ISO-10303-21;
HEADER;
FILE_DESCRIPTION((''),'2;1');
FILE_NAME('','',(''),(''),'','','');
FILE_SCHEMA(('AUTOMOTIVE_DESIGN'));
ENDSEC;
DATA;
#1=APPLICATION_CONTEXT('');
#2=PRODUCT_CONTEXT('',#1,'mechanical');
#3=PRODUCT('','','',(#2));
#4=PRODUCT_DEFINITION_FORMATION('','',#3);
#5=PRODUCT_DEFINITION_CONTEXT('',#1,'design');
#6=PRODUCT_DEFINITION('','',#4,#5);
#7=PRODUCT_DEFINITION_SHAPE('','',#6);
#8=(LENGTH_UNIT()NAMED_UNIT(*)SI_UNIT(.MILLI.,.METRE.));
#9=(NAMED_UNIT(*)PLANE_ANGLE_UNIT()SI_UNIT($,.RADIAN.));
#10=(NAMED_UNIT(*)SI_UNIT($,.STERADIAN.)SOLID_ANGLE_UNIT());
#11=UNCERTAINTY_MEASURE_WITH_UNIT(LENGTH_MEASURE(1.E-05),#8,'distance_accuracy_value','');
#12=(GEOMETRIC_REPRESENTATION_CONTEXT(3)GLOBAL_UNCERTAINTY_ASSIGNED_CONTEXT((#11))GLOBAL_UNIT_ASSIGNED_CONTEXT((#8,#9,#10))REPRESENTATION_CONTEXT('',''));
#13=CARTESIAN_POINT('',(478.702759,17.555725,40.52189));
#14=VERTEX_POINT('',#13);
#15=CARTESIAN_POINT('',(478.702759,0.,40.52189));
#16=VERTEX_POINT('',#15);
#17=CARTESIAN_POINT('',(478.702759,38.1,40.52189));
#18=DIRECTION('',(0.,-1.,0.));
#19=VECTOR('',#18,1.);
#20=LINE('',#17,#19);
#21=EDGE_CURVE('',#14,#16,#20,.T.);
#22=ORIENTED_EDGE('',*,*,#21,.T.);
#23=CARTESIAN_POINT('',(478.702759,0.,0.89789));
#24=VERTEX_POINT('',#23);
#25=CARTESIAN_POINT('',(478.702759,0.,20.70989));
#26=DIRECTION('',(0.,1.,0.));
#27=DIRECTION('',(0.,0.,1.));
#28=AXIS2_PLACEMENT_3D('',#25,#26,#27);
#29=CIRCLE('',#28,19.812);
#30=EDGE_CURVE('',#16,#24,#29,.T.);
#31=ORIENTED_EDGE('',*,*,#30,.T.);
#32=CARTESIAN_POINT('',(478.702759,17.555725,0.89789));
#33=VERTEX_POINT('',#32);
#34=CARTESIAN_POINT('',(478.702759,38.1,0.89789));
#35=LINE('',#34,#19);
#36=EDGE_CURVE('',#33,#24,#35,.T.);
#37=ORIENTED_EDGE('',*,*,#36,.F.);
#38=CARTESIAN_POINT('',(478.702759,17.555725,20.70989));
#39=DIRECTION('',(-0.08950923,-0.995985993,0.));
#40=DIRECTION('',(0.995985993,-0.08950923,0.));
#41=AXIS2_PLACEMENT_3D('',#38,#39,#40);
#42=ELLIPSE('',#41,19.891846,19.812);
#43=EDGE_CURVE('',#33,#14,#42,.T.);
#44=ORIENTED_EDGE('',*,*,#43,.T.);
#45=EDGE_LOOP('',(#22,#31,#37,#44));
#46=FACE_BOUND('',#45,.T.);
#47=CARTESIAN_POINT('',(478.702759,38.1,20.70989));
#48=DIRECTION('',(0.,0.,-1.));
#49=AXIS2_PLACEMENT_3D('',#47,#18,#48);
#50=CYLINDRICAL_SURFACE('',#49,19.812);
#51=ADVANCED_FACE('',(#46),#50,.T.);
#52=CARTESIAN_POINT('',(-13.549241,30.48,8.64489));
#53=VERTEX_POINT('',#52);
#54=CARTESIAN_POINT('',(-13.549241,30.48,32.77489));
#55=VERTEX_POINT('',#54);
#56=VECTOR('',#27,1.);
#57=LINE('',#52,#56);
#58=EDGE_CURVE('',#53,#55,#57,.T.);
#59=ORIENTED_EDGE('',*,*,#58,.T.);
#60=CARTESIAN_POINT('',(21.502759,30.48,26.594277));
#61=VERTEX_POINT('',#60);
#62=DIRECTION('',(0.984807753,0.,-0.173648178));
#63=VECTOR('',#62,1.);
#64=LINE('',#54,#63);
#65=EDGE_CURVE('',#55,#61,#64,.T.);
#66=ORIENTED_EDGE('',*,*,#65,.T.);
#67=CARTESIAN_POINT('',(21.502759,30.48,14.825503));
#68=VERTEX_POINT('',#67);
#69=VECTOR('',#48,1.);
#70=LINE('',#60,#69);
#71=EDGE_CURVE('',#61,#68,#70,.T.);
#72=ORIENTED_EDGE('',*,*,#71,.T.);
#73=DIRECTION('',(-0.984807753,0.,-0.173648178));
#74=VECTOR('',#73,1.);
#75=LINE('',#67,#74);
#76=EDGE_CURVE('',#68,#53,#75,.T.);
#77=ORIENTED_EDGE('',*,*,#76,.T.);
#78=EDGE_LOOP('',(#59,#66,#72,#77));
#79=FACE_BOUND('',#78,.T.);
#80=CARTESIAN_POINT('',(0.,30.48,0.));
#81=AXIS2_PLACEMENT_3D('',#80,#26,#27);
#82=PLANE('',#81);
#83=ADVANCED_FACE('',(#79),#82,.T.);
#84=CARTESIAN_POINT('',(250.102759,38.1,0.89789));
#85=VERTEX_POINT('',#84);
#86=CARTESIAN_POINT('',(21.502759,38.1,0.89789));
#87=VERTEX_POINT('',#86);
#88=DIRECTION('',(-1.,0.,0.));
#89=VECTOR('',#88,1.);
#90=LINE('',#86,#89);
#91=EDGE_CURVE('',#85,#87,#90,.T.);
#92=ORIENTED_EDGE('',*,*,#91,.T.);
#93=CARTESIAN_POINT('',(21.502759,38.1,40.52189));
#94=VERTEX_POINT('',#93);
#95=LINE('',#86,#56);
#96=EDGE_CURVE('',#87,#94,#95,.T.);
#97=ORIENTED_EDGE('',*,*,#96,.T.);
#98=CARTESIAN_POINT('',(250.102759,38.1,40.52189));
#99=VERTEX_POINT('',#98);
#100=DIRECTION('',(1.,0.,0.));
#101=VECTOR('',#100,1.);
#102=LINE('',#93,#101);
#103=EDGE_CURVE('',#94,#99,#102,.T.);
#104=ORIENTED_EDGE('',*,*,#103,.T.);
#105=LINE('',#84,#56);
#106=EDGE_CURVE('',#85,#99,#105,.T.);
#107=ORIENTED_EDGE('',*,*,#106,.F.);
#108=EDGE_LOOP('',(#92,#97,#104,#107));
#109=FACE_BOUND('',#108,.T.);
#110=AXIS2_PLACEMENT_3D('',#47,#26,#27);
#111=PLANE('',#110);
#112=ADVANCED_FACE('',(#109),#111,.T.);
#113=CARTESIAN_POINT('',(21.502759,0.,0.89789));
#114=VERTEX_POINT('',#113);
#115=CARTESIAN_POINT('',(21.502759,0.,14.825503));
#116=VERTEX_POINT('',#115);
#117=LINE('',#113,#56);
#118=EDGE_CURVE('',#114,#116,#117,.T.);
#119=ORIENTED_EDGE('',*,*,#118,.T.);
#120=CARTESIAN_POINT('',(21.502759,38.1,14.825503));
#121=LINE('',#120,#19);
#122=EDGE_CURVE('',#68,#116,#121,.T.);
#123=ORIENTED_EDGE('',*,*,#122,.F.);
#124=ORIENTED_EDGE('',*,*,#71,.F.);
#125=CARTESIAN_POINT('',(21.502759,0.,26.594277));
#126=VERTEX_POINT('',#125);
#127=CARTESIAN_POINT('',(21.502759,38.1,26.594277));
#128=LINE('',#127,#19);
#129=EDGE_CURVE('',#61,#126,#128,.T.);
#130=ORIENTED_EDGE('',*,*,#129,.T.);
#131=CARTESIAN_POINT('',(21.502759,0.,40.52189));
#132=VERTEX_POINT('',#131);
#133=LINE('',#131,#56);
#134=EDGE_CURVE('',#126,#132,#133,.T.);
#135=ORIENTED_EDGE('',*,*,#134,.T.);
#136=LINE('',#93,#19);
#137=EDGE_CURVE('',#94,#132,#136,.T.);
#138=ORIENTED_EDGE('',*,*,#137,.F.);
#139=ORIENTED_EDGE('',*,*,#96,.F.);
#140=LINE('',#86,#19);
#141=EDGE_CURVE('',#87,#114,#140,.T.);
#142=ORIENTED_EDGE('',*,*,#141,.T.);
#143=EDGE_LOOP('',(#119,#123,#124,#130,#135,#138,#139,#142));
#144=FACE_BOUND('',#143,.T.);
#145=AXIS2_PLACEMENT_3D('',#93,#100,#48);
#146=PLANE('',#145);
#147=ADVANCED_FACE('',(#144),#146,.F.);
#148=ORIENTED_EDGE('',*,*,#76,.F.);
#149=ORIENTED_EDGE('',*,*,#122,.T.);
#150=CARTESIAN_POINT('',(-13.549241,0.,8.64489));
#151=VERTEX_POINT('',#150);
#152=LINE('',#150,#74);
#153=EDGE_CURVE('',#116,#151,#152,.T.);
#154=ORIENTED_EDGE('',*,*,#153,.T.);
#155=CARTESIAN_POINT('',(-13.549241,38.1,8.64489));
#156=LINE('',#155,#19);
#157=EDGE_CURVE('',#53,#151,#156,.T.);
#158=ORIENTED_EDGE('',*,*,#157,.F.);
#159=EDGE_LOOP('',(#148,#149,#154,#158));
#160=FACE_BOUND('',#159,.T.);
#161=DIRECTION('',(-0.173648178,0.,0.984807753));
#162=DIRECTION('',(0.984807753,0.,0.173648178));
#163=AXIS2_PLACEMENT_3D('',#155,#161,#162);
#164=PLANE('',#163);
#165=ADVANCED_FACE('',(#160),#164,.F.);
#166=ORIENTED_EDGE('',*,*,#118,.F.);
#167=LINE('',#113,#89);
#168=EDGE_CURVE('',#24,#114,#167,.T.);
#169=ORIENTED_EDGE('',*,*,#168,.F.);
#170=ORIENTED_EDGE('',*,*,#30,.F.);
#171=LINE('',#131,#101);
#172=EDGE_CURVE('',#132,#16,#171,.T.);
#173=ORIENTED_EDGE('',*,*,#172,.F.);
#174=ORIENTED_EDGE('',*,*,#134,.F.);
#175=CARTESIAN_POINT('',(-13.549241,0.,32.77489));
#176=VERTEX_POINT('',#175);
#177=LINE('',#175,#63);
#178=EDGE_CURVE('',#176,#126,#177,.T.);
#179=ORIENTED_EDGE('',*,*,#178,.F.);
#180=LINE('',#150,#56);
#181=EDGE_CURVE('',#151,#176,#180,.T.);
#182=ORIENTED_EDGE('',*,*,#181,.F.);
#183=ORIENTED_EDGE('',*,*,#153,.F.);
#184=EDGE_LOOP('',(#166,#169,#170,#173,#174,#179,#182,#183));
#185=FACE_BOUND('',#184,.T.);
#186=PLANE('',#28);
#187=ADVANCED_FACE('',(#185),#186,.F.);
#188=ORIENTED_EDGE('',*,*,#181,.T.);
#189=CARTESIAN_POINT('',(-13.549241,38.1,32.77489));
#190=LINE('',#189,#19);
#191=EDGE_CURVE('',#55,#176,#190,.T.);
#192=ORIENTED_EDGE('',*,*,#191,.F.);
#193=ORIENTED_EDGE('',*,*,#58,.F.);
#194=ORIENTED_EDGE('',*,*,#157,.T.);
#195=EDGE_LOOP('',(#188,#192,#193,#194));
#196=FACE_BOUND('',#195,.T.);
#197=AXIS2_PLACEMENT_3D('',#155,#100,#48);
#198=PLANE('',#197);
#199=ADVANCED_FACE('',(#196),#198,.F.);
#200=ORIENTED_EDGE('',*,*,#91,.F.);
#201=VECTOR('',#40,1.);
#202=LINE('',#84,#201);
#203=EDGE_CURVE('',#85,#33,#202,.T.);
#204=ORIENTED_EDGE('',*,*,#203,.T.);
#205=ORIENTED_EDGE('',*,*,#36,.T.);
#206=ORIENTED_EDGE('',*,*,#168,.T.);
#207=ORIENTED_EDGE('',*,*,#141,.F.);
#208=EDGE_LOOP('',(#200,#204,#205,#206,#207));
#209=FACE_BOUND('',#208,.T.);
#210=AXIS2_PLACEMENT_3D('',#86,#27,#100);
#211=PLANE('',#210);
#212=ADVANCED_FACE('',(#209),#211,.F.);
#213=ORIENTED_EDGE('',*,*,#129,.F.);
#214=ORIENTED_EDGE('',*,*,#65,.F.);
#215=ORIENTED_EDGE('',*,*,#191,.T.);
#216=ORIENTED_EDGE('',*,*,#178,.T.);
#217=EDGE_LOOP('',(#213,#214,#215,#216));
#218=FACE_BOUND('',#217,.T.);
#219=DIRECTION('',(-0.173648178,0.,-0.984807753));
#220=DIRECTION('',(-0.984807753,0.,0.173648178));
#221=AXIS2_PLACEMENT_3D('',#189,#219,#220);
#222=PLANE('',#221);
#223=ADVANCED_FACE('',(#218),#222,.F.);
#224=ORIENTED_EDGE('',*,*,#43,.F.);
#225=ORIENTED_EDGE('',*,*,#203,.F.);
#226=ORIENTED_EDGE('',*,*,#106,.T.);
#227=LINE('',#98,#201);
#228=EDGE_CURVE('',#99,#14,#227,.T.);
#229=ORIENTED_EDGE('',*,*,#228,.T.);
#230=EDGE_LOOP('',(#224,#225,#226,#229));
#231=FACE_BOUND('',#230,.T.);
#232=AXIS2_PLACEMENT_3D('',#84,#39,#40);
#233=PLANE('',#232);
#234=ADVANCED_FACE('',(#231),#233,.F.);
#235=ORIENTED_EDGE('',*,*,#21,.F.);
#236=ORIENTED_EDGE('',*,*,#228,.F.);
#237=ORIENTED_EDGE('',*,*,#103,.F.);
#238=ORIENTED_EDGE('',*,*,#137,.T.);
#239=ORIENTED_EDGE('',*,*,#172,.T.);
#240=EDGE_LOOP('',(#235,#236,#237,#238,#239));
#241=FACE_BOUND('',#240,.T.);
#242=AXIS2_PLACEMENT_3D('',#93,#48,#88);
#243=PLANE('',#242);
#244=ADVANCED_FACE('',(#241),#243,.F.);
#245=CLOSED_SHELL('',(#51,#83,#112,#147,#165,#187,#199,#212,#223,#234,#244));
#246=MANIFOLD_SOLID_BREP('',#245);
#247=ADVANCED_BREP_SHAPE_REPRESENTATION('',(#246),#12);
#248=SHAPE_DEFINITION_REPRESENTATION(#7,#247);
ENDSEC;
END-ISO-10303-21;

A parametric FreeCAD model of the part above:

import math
import FreeCAD as App
import Part
import Sketcher

V = App.Vector
Q = App.Units.Quantity


def add_polygon(sketch, points):
    """Adds a closed chain of lines whose ends are joined by coincident constraints."""
    first, n = sketch.GeometryCount, len(points)
    for a, b in zip(points, points[1:] + points[:1]):
        sketch.addGeometry(Part.LineSegment(App.Vector(*a, 0), App.Vector(*b, 0)), False)
    for i in range(n):
        sketch.addConstraint(Sketcher.Constraint("Coincident", first + i, 2, first + (i + 1) % n, 1))

doc = App.newDocument("Part")
body = doc.addObject("PartDesign::Body", "Body")

sketch1 = body.newObject("Sketcher::SketchObject", "Sketch")
sketch1.AttachmentSupport = (doc.getObject("XZ_Plane"), [""])
sketch1.MapMode = "FlatFace"
sketch1.addGeometry([
    Part.LineSegment(V(-14, 9, 0), V(-14, 33, 0)),
    Part.LineSegment(V(-14, 33, 0), V(22, 27, 0)),
    Part.LineSegment(V(22, 27, 0), V(22, 41, 0)),
    Part.LineSegment(V(22, 41, 0), V(479, 41, 0)),
    Part.ArcOfCircle(Part.Circle(V(479, 21, 0), V(0, 0, 1), 20), math.radians(-90), math.radians(90)),
    Part.LineSegment(V(479, 1, 0), V(22, 1, 0)),
    Part.LineSegment(V(22, 1, 0), V(22, 15, 0)),
    Part.LineSegment(V(22, 15, 0), V(-14, 9, 0)),
], False)
sketch1.addConstraint([
    Sketcher.Constraint("Coincident", 0, 2, 1, 1),
    Sketcher.Constraint("Coincident", 1, 2, 2, 1),
    Sketcher.Constraint("Coincident", 2, 2, 3, 1),
    Sketcher.Constraint("Tangent", 3, 2, 4, 2),
    Sketcher.Constraint("Tangent", 4, 1, 5, 1),
    Sketcher.Constraint("Coincident", 5, 2, 6, 1),
    Sketcher.Constraint("Coincident", 6, 2, 7, 1),
    Sketcher.Constraint("Coincident", 7, 2, 0, 1),
    Sketcher.Constraint("Vertical", 0),
    Sketcher.Constraint("Vertical", 2),
    Sketcher.Constraint("Horizontal", 3),
    Sketcher.Constraint("Horizontal", 5),
    Sketcher.Constraint("Vertical", 6),
    Sketcher.Constraint("Vertical", 2, 2, 5, 2),
    Sketcher.Constraint("Equal", 2, 6),
    Sketcher.Constraint("Equal", 1, 7),
    Sketcher.Constraint("DistanceX", 3, 1, 3, 2, Q("18 in")),
    Sketcher.Constraint("Radius", 4, Q("0.78 in")),
    Sketcher.Constraint("Angle", 1, Q("-10 deg")),
    Sketcher.Constraint("DistanceY", 0, 1, 0, 2, Q("0.95 in")),
    Sketcher.Constraint("DistanceX", 0, 2, 4, 3, Q("19.38 in")),
    Sketcher.Constraint("DistanceX", -1, 1, 4, 3, Q("478.702759 mm")),
    Sketcher.Constraint("DistanceY", -1, 1, 4, 3, Q("20.70989 mm")),
])
pad1 = body.newObject("PartDesign::Pad", "Pad")
pad1.Profile = sketch1
pad1.Length = Q("1.5 in")
pad1.Reversed = True

sketch2 = body.newObject("Sketcher::SketchObject", "Sketch001")
sketch2.AttachmentSupport = (doc.getObject("XZ_Plane"), [""])
sketch2.MapMode = "FlatFace"
sketch2.AttachmentOffset = App.Placement(V(0, 0, -1.5 * 25.4), App.Rotation())
add_polygon(sketch2, [(-14, 9), (-14, 33), (22, 27), (22, 15)])
sketch2.addConstraint([
    Sketcher.Constraint("Vertical", 0),
    Sketcher.Constraint("Vertical", 2),
    Sketcher.Constraint("Equal", 1, 3),
    Sketcher.Constraint("Angle", 1, Q("-10 deg")),
    Sketcher.Constraint("DistanceY", 0, 1, 0, 2, Q("0.95 in")),
    Sketcher.Constraint("DistanceX", 0, 2, 1, 2, Q("1.38 in")),
    Sketcher.Constraint("DistanceX", 0, 2, -1, 1, Q("13.549241 mm")),
    Sketcher.Constraint("DistanceY", -1, 1, 0, 2, Q("32.77489 mm")),
])
pocket1 = body.newObject("PartDesign::Pocket", "Pocket")
pocket1.Profile = sketch2
pocket1.Length = Q("0.3 in")
pocket1.Reversed = True

sketch3 = body.newObject("Sketcher::SketchObject", "Sketch002")
sketch3.AttachmentSupport = (doc.getObject("XY_Plane"), [""])
sketch3.MapMode = "FlatFace"
sketch3.AttachmentOffset = App.Placement(V(0, 0, 40.52189), App.Rotation())
add_polygon(sketch3, [(250, 38), (499, 16), (499, 38)])
sketch3.addConstraint([
    Sketcher.Constraint("Vertical", 1),
    Sketcher.Constraint("Horizontal", 2),
    Sketcher.Constraint("DistanceX", 2, 2, 2, 1, Q("9.78 in")),
    Sketcher.Constraint("DistanceY", -1, 1, 1, 2, Q("1.5 in")),
    Sketcher.Constraint("DistanceY", 1, 1, 1, 2, Q("22.324779 mm")),
    Sketcher.Constraint("DistanceX", -1, 1, 0, 2, Q("498.514759 mm")),
])
pocket2 = body.newObject("PartDesign::Pocket", "Pocket001")
pocket2.Profile = sketch3
pocket2.Length = Q("1.56 in")

doc.recompute()
